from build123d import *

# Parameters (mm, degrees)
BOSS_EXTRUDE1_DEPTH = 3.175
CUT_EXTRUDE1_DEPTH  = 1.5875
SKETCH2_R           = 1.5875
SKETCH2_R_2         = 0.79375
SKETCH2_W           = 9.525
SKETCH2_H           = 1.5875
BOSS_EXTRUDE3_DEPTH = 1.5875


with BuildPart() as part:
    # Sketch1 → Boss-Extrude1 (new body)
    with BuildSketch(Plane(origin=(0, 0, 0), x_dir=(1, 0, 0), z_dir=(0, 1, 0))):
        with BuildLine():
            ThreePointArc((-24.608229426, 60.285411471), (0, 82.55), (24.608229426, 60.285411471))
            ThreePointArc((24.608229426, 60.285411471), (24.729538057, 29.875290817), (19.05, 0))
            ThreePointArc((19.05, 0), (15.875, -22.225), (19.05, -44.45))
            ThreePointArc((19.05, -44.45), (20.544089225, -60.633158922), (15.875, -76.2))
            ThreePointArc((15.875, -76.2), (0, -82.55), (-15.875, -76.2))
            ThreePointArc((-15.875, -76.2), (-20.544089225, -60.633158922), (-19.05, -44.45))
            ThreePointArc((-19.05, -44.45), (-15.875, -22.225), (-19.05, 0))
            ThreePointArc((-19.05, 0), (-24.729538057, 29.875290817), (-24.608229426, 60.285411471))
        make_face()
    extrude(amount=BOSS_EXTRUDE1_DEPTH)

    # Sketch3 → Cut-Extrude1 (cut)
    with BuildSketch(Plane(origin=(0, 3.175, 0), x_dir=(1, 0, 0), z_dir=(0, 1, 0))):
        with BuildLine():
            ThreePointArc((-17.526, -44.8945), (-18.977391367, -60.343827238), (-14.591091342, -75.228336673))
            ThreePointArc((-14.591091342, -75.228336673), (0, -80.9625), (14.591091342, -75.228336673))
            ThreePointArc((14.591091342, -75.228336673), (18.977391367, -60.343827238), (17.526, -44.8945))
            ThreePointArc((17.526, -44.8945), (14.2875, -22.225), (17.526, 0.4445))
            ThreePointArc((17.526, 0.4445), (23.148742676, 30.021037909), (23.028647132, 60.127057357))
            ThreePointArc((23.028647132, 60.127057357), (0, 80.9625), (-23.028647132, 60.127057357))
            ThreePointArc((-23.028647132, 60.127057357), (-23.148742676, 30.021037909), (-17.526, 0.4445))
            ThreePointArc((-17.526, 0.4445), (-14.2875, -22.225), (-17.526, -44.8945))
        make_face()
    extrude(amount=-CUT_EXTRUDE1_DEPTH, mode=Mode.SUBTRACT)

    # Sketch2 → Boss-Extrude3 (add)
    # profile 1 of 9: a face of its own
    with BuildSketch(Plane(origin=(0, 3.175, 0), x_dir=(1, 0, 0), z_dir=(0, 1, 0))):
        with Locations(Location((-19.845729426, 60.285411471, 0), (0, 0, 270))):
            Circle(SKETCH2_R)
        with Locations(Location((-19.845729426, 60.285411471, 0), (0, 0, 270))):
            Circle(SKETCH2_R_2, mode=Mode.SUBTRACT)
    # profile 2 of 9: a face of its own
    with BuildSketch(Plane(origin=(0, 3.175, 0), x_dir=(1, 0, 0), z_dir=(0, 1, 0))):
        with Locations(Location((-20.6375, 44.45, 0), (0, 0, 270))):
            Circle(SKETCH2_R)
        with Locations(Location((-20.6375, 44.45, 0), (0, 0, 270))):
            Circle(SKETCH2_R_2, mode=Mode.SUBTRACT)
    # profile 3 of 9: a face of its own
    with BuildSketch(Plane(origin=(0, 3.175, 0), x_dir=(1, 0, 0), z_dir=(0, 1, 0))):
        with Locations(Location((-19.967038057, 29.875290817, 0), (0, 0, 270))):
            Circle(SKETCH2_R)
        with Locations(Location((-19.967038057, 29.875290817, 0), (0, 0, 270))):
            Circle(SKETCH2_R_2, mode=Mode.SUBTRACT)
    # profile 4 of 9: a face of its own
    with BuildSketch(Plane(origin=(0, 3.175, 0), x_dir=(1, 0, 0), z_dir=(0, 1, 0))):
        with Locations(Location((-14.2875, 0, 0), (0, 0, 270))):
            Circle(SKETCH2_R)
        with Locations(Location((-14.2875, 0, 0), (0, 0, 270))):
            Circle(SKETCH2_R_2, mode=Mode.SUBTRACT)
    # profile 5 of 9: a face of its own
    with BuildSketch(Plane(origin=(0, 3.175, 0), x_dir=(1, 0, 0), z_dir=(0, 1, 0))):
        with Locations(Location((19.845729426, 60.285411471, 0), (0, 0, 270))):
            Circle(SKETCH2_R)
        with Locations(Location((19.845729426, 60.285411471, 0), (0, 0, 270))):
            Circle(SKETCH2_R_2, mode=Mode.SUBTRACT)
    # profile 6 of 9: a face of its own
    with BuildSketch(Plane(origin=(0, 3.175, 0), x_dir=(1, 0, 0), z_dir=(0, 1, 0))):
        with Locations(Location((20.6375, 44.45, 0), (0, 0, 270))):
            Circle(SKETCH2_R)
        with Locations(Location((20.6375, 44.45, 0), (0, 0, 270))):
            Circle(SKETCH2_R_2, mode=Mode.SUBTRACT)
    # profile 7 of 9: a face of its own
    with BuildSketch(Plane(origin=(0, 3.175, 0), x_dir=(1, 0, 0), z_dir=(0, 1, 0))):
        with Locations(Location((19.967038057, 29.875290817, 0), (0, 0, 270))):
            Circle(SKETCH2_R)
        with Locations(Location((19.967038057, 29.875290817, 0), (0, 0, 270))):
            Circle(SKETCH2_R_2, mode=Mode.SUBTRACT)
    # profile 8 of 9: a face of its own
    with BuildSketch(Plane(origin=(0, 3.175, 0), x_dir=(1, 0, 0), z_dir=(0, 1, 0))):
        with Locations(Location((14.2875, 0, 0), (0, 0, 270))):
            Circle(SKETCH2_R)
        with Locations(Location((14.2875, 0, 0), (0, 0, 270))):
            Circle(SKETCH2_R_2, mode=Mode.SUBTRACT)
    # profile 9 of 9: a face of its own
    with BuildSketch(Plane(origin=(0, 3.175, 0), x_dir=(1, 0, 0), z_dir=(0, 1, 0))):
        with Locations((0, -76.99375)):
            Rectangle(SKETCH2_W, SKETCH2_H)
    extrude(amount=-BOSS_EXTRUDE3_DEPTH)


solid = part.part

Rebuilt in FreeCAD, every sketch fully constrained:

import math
import FreeCAD as App
import Part
import Sketcher
Q = App.Units.Quantity


def add_polygon(sketch, points):
    """Adds a closed chain of lines whose ends are joined by coincident constraints."""
    first, n = sketch.GeometryCount, len(points)
    for a, b in zip(points, points[1:] + points[:1]):
        sketch.addGeometry(Part.LineSegment(App.Vector(*a, 0), App.Vector(*b, 0)), False)
    for i in range(n):
        sketch.addConstraint(Sketcher.Constraint("Coincident", first + i, 2, first + (i + 1) % n, 1))

doc = App.newDocument("Part")
body = doc.addObject("PartDesign::Body", "Body")

sketch1 = body.newObject("Sketcher::SketchObject", "Sketch")
sketch1.AttachmentSupport = (doc.getObject("XZ_Plane"), [""])
sketch1.MapMode = "FlatFace"
sketch1.addGeometry([
    Part.ArcOfCircle(Part.Circle(App.Vector(0, -57.818421, 0), App.Vector(0, 0, 1), 24.731579), math.radians(-174.27519), math.radians(-5.72481)),
    Part.ArcOfCircle(Part.Circle(App.Vector(133.35, -44.45, 0), App.Vector(0, 0, 1), 158.75), math.radians(163.739795), math.radians(185.72481)),
    Part.ArcOfCircle(Part.Circle(App.Vector(-95.25, 22.225, 0), App.Vector(0, 0, 1), 79.375), math.radians(-16.260205), math.radians(16.260205)),
    Part.ArcOfCircle(Part.Circle(App.Vector(21.887234, 56.390027, 0), App.Vector(0, 0, 1), 42.642952), math.radians(152.318609), math.radians(196.260205)),
    Part.ArcOfCircle(Part.Circle(App.Vector(0, 59.53125, 0), App.Vector(0, 0, 1), 23.01875), math.radians(46.397181), math.radians(133.602819)),
    Part.ArcOfCircle(Part.Circle(App.Vector(-21.887234, 56.390027, 0), App.Vector(0, 0, 1), 42.642952), math.radians(-16.260205), math.radians(27.681391)),
    Part.ArcOfCircle(Part.Circle(App.Vector(95.25, 22.225, 0), App.Vector(0, 0, 1), 79.375), math.radians(163.739795), math.radians(196.260205)),
    Part.ArcOfCircle(Part.Circle(App.Vector(-133.35, -44.45, 0), App.Vector(0, 0, 1), 158.75), math.radians(-5.72481), math.radians(16.260205)),
], False)
sketch1.addConstraint([
    Sketcher.Constraint("Tangent", 0, 1, 1, 2),
    Sketcher.Constraint("Tangent", 1, 1, 2, 1),
    Sketcher.Constraint("Tangent", 2, 2, 3, 2),
    Sketcher.Constraint("Coincident", 3, 1, 4, 2),
    Sketcher.Constraint("Coincident", 4, 1, 5, 2),
    Sketcher.Constraint("Tangent", 5, 1, 6, 1),
    Sketcher.Constraint("Tangent", 6, 2, 7, 2),
    Sketcher.Constraint("Tangent", 7, 1, 0, 2),
    Sketcher.Constraint("Equal", 3, 5),
    Sketcher.Constraint("Equal", 2, 6),
    Sketcher.Constraint("Equal", 1, 7),
    Sketcher.Constraint("Symmetric", 1, 1, 6, 2, -1, 1),
    Sketcher.Constraint("Symmetric", 3, 3, 5, 3, -2),
    Sketcher.Constraint("PointOnObject", 0, 3, -2),
    Sketcher.Constraint("PointOnObject", 4, 3, -2),
    Sketcher.Constraint("Vertical", 1, 1, 2, 2),
    Sketcher.Constraint("Radius", 1, Q("6.25 in")),
    Sketcher.Constraint("DistanceY", -1, 1, 3, 1, Q("3 in")),
    Sketcher.Constraint("Radius", 2, Q("3.125 in")),
    Sketcher.Constraint("Radius", 4, Q("0.90625 in")),
    Sketcher.Constraint("DistanceX", 2, 3, 1, 3, Q("9 in")),
    Sketcher.Constraint("DistanceX", 6, 3, 1, 3, Q("1.5 in")),
    Sketcher.Constraint("DistanceX", 3, 1, 4, 1, Q("1.25 in")),
    Sketcher.Constraint("Radius", 0, Q("24.731579 mm")),
])
pad1 = body.newObject("PartDesign::Pad", "Pad")
pad1.Profile = sketch1
pad1.Length = Q("0.125 in")
pad1.Reversed = True

sketch2 = body.newObject("Sketcher::SketchObject", "Sketch001")
sketch2.AttachmentSupport = (doc.getObject("XZ_Plane"), [""])
sketch2.MapMode = "FlatFace"
sketch2.AttachmentOffset = App.Placement(App.Vector(0, 0, -0.125 * 25.4), App.Rotation())
sketch2.addGeometry([
    Part.ArcOfCircle(Part.Circle(App.Vector(21.887234, 56.390027, 0), App.Vector(0, 0, 1), 41.055452), math.radians(152.68705), math.radians(196.260205)),
    Part.ArcOfCircle(Part.Circle(App.Vector(0, 59.53125, 0), App.Vector(0, 0, 1), 21.43125), math.radians(47.091269), math.radians(132.908731)),
    Part.ArcOfCircle(Part.Circle(App.Vector(-21.887234, 56.390027, 0), App.Vector(0, 0, 1), 41.055452), math.radians(-16.260205), math.radians(27.31295)),
    Part.ArcOfCircle(Part.Circle(App.Vector(95.25, 22.225, 0), App.Vector(0, 0, 1), 80.9625), math.radians(163.739795), math.radians(196.260205)),
    Part.ArcOfCircle(Part.Circle(App.Vector(-133.35, -44.45, 0), App.Vector(0, 0, 1), 157.1625), math.radians(-5.72481), math.radians(16.260205)),
    Part.ArcOfCircle(Part.Circle(App.Vector(0, -57.818421, 0), App.Vector(0, 0, 1), 23.144079), math.radians(-174.27519), math.radians(-5.72481)),
    Part.ArcOfCircle(Part.Circle(App.Vector(133.35, -44.45, 0), App.Vector(0, 0, 1), 157.1625), math.radians(163.739795), math.radians(185.72481)),
    Part.ArcOfCircle(Part.Circle(App.Vector(-95.25, 22.225, 0), App.Vector(0, 0, 1), 80.9625), math.radians(-16.260205), math.radians(16.260205)),
], False)
sketch2.addConstraint([
    Sketcher.Constraint("Coincident", 0, 1, 1, 2),
    Sketcher.Constraint("Coincident", 1, 1, 2, 2),
    Sketcher.Constraint("Tangent", 2, 1, 3, 1),
    Sketcher.Constraint("Tangent", 3, 2, 4, 2),
    Sketcher.Constraint("Tangent", 4, 1, 5, 2),
    Sketcher.Constraint("Tangent", 5, 1, 6, 2),
    Sketcher.Constraint("Tangent", 6, 1, 7, 1),
    Sketcher.Constraint("Tangent", 7, 2, 0, 2),
    Sketcher.Constraint("Equal", 0, 2),
    Sketcher.Constraint("Equal", 4, 6),
    Sketcher.Constraint("Equal", 3, 7),
    Sketcher.Constraint("Symmetric", 0, 3, 2, 3, -2),
    Sketcher.Constraint("Symmetric", 4, 3, 6, 3, -2),
    Sketcher.Constraint("PointOnObject", 1, 3, -2),
    Sketcher.Constraint("Vertical", 2, 1, 3, 2),
    Sketcher.Constraint("Radius", 1, Q("0.84375 in")),
    Sketcher.Constraint("Radius", 3, Q("3.1875 in")),
    Sketcher.Constraint("Radius", 4, Q("6.1875 in")),
    Sketcher.Constraint("DistanceX", 4, 3, 3, 3, Q("9 in")),
    Sketcher.Constraint("DistanceX", 3, 3, 6, 3, Q("1.5 in")),
    Sketcher.Constraint("DistanceY", 4, 3, -1, 1, Q("1.75 in")),
    Sketcher.Constraint("DistanceY", -1, 1, 1, 3, Q("2.34375 in")),
    Sketcher.Constraint("Radius", 5, Q("23.144079 mm")),
    Sketcher.Constraint("Radius", 0, Q("41.055452 mm")),
])
pocket1 = body.newObject("PartDesign::Pocket", "Pocket")
pocket1.Profile = sketch2
pocket1.Length = Q("0.0625 in")
pocket1.Reversed = True

sketch3 = body.newObject("Sketcher::SketchObject", "Sketch002")
sketch3.AttachmentSupport = (doc.getObject("XZ_Plane"), [""])
sketch3.MapMode = "FlatFace"
sketch3.AttachmentOffset = App.Placement(App.Vector(0, 0, -0.125 * 25.4), App.Rotation())
sketch3.addGeometry(Part.Circle(App.Vector(-19.845729, -60.285411, 0), App.Vector(0, 0, 1), 1.5875), False)
sketch3.addGeometry(Part.Circle(App.Vector(-19.845729, -60.285411, 0), App.Vector(0, 0, 1), 0.79375), False)
sketch3.addGeometry(Part.Circle(App.Vector(-20.6375, -44.45, 0), App.Vector(0, 0, 1), 1.5875), False)
sketch3.addGeometry(Part.Circle(App.Vector(-20.6375, -44.45, 0), App.Vector(0, 0, 1), 0.79375), False)
sketch3.addGeometry(Part.Circle(App.Vector(-19.967038, -29.875291, 0), App.Vector(0, 0, 1), 1.5875), False)
sketch3.addGeometry(Part.Circle(App.Vector(-19.967038, -29.875291, 0), App.Vector(0, 0, 1), 0.79375), False)
sketch3.addGeometry(Part.Circle(App.Vector(-14.2875, 0, 0), App.Vector(0, 0, 1), 1.5875), False)
sketch3.addGeometry(Part.Circle(App.Vector(-14.2875, 0, 0), App.Vector(0, 0, 1), 0.79375), False)
sketch3.addGeometry(Part.Circle(App.Vector(19.845729, -60.285411, 0), App.Vector(0, 0, 1), 1.5875), False)
sketch3.addGeometry(Part.Circle(App.Vector(19.845729, -60.285411, 0), App.Vector(0, 0, 1), 0.79375), False)
sketch3.addGeometry(Part.Circle(App.Vector(20.6375, -44.45, 0), App.Vector(0, 0, 1), 1.5875), False)
sketch3.addGeometry(Part.Circle(App.Vector(20.6375, -44.45, 0), App.Vector(0, 0, 1), 0.79375), False)
sketch3.addGeometry(Part.Circle(App.Vector(19.967038, -29.875291, 0), App.Vector(0, 0, 1), 1.5875), False)
sketch3.addGeometry(Part.Circle(App.Vector(19.967038, -29.875291, 0), App.Vector(0, 0, 1), 0.79375), False)
sketch3.addGeometry(Part.Circle(App.Vector(14.2875, 0, 0), App.Vector(0, 0, 1), 1.5875), False)
sketch3.addGeometry(Part.Circle(App.Vector(14.2875, 0, 0), App.Vector(0, 0, 1), 0.79375), False)
add_polygon(sketch3, [(-4.7625, 76.2), (-4.7625, 77.7875), (4.7625, 77.7875), (4.7625, 76.2)])
sketch3.addConstraint([
    Sketcher.Constraint("Vertical", 16),
    Sketcher.Constraint("Horizontal", 17),
    Sketcher.Constraint("Vertical", 18),
    Sketcher.Constraint("Horizontal", 19),
    Sketcher.Constraint("Coincident", 1, 3, 0, 3),
    Sketcher.Constraint("Coincident", 3, 3, 2, 3),
    Sketcher.Constraint("Coincident", 5, 3, 4, 3),
    Sketcher.Constraint("Coincident", 7, 3, 6, 3),
    Sketcher.Constraint("Coincident", 9, 3, 8, 3),
    Sketcher.Constraint("Coincident", 11, 3, 10, 3),
    Sketcher.Constraint("Coincident", 13, 3, 12, 3),
    Sketcher.Constraint("Coincident", 15, 3, 14, 3),
    Sketcher.Constraint("Equal", 0, 2),
    Sketcher.Constraint("Equal", 1, 3),
    Sketcher.Constraint("Equal", 2, 4),
    Sketcher.Constraint("Equal", 3, 5),
    Sketcher.Constraint("Equal", 4, 6),
    Sketcher.Constraint("Equal", 5, 7),
    Sketcher.Constraint("Equal", 6, 8),
    Sketcher.Constraint("Equal", 7, 9),
    Sketcher.Constraint("Equal", 8, 10),
    Sketcher.Constraint("Equal", 9, 11),
    Sketcher.Constraint("Equal", 10, 12),
    Sketcher.Constraint("Equal", 11, 13),
    Sketcher.Constraint("Equal", 12, 14),
    Sketcher.Constraint("Equal", 13, 15),
    Sketcher.Constraint("Symmetric", 6, 3, 14, 3, -1, 1),
    Sketcher.Constraint("Symmetric", 0, 3, 8, 3, -2),
    Sketcher.Constraint("Symmetric", 2, 3, 10, 3, -2),
    Sketcher.Constraint("Symmetric", 4, 3, 12, 3, -2),
    Sketcher.Constraint("PointOnObject", 6, 3, -1),
    Sketcher.Constraint("Diameter", 0, Q("0.125 in")),
    Sketcher.Constraint("Diameter", 1, Q("0.0625 in")),
    Sketcher.Constraint("DistanceY", -1, 1, 18, 2, Q("3 in")),
    Sketcher.Constraint("DistanceX", 17, 1, 17, 2, Q("0.375 in")),
    Sketcher.Constraint("DistanceY", 16, 1, 16, 2, Q("0.0625 in")),
    Sketcher.Constraint("DistanceY", 2, 3, -1, 1, Q("1.75 in")),
    Sketcher.Constraint("DistanceX", 2, 3, 6, 3, Q("0.25 in")),
    Sketcher.Constraint("DistanceX", 16, 2, 14, 3, Q("0.75 in")),
    Sketcher.Constraint("DistanceX", 6, 3, 17, 2, Q("0.75 in")),
    Sketcher.Constraint("DistanceX", 0, 3, -1, 1, Q("19.845729 mm")),
    Sketcher.Constraint("DistanceY", 0, 3, -1, 1, Q("60.285411 mm")),
    Sketcher.Constraint("DistanceX", 4, 3, -1, 1, Q("19.967038 mm")),
    Sketcher.Constraint("DistanceY", 4, 3, -1, 1, Q("29.875291 mm")),
])
pad2 = body.newObject("PartDesign::Pad", "Pad001")
pad2.Profile = sketch3
pad2.Length = Q("0.0625 in")

doc.recompute()
